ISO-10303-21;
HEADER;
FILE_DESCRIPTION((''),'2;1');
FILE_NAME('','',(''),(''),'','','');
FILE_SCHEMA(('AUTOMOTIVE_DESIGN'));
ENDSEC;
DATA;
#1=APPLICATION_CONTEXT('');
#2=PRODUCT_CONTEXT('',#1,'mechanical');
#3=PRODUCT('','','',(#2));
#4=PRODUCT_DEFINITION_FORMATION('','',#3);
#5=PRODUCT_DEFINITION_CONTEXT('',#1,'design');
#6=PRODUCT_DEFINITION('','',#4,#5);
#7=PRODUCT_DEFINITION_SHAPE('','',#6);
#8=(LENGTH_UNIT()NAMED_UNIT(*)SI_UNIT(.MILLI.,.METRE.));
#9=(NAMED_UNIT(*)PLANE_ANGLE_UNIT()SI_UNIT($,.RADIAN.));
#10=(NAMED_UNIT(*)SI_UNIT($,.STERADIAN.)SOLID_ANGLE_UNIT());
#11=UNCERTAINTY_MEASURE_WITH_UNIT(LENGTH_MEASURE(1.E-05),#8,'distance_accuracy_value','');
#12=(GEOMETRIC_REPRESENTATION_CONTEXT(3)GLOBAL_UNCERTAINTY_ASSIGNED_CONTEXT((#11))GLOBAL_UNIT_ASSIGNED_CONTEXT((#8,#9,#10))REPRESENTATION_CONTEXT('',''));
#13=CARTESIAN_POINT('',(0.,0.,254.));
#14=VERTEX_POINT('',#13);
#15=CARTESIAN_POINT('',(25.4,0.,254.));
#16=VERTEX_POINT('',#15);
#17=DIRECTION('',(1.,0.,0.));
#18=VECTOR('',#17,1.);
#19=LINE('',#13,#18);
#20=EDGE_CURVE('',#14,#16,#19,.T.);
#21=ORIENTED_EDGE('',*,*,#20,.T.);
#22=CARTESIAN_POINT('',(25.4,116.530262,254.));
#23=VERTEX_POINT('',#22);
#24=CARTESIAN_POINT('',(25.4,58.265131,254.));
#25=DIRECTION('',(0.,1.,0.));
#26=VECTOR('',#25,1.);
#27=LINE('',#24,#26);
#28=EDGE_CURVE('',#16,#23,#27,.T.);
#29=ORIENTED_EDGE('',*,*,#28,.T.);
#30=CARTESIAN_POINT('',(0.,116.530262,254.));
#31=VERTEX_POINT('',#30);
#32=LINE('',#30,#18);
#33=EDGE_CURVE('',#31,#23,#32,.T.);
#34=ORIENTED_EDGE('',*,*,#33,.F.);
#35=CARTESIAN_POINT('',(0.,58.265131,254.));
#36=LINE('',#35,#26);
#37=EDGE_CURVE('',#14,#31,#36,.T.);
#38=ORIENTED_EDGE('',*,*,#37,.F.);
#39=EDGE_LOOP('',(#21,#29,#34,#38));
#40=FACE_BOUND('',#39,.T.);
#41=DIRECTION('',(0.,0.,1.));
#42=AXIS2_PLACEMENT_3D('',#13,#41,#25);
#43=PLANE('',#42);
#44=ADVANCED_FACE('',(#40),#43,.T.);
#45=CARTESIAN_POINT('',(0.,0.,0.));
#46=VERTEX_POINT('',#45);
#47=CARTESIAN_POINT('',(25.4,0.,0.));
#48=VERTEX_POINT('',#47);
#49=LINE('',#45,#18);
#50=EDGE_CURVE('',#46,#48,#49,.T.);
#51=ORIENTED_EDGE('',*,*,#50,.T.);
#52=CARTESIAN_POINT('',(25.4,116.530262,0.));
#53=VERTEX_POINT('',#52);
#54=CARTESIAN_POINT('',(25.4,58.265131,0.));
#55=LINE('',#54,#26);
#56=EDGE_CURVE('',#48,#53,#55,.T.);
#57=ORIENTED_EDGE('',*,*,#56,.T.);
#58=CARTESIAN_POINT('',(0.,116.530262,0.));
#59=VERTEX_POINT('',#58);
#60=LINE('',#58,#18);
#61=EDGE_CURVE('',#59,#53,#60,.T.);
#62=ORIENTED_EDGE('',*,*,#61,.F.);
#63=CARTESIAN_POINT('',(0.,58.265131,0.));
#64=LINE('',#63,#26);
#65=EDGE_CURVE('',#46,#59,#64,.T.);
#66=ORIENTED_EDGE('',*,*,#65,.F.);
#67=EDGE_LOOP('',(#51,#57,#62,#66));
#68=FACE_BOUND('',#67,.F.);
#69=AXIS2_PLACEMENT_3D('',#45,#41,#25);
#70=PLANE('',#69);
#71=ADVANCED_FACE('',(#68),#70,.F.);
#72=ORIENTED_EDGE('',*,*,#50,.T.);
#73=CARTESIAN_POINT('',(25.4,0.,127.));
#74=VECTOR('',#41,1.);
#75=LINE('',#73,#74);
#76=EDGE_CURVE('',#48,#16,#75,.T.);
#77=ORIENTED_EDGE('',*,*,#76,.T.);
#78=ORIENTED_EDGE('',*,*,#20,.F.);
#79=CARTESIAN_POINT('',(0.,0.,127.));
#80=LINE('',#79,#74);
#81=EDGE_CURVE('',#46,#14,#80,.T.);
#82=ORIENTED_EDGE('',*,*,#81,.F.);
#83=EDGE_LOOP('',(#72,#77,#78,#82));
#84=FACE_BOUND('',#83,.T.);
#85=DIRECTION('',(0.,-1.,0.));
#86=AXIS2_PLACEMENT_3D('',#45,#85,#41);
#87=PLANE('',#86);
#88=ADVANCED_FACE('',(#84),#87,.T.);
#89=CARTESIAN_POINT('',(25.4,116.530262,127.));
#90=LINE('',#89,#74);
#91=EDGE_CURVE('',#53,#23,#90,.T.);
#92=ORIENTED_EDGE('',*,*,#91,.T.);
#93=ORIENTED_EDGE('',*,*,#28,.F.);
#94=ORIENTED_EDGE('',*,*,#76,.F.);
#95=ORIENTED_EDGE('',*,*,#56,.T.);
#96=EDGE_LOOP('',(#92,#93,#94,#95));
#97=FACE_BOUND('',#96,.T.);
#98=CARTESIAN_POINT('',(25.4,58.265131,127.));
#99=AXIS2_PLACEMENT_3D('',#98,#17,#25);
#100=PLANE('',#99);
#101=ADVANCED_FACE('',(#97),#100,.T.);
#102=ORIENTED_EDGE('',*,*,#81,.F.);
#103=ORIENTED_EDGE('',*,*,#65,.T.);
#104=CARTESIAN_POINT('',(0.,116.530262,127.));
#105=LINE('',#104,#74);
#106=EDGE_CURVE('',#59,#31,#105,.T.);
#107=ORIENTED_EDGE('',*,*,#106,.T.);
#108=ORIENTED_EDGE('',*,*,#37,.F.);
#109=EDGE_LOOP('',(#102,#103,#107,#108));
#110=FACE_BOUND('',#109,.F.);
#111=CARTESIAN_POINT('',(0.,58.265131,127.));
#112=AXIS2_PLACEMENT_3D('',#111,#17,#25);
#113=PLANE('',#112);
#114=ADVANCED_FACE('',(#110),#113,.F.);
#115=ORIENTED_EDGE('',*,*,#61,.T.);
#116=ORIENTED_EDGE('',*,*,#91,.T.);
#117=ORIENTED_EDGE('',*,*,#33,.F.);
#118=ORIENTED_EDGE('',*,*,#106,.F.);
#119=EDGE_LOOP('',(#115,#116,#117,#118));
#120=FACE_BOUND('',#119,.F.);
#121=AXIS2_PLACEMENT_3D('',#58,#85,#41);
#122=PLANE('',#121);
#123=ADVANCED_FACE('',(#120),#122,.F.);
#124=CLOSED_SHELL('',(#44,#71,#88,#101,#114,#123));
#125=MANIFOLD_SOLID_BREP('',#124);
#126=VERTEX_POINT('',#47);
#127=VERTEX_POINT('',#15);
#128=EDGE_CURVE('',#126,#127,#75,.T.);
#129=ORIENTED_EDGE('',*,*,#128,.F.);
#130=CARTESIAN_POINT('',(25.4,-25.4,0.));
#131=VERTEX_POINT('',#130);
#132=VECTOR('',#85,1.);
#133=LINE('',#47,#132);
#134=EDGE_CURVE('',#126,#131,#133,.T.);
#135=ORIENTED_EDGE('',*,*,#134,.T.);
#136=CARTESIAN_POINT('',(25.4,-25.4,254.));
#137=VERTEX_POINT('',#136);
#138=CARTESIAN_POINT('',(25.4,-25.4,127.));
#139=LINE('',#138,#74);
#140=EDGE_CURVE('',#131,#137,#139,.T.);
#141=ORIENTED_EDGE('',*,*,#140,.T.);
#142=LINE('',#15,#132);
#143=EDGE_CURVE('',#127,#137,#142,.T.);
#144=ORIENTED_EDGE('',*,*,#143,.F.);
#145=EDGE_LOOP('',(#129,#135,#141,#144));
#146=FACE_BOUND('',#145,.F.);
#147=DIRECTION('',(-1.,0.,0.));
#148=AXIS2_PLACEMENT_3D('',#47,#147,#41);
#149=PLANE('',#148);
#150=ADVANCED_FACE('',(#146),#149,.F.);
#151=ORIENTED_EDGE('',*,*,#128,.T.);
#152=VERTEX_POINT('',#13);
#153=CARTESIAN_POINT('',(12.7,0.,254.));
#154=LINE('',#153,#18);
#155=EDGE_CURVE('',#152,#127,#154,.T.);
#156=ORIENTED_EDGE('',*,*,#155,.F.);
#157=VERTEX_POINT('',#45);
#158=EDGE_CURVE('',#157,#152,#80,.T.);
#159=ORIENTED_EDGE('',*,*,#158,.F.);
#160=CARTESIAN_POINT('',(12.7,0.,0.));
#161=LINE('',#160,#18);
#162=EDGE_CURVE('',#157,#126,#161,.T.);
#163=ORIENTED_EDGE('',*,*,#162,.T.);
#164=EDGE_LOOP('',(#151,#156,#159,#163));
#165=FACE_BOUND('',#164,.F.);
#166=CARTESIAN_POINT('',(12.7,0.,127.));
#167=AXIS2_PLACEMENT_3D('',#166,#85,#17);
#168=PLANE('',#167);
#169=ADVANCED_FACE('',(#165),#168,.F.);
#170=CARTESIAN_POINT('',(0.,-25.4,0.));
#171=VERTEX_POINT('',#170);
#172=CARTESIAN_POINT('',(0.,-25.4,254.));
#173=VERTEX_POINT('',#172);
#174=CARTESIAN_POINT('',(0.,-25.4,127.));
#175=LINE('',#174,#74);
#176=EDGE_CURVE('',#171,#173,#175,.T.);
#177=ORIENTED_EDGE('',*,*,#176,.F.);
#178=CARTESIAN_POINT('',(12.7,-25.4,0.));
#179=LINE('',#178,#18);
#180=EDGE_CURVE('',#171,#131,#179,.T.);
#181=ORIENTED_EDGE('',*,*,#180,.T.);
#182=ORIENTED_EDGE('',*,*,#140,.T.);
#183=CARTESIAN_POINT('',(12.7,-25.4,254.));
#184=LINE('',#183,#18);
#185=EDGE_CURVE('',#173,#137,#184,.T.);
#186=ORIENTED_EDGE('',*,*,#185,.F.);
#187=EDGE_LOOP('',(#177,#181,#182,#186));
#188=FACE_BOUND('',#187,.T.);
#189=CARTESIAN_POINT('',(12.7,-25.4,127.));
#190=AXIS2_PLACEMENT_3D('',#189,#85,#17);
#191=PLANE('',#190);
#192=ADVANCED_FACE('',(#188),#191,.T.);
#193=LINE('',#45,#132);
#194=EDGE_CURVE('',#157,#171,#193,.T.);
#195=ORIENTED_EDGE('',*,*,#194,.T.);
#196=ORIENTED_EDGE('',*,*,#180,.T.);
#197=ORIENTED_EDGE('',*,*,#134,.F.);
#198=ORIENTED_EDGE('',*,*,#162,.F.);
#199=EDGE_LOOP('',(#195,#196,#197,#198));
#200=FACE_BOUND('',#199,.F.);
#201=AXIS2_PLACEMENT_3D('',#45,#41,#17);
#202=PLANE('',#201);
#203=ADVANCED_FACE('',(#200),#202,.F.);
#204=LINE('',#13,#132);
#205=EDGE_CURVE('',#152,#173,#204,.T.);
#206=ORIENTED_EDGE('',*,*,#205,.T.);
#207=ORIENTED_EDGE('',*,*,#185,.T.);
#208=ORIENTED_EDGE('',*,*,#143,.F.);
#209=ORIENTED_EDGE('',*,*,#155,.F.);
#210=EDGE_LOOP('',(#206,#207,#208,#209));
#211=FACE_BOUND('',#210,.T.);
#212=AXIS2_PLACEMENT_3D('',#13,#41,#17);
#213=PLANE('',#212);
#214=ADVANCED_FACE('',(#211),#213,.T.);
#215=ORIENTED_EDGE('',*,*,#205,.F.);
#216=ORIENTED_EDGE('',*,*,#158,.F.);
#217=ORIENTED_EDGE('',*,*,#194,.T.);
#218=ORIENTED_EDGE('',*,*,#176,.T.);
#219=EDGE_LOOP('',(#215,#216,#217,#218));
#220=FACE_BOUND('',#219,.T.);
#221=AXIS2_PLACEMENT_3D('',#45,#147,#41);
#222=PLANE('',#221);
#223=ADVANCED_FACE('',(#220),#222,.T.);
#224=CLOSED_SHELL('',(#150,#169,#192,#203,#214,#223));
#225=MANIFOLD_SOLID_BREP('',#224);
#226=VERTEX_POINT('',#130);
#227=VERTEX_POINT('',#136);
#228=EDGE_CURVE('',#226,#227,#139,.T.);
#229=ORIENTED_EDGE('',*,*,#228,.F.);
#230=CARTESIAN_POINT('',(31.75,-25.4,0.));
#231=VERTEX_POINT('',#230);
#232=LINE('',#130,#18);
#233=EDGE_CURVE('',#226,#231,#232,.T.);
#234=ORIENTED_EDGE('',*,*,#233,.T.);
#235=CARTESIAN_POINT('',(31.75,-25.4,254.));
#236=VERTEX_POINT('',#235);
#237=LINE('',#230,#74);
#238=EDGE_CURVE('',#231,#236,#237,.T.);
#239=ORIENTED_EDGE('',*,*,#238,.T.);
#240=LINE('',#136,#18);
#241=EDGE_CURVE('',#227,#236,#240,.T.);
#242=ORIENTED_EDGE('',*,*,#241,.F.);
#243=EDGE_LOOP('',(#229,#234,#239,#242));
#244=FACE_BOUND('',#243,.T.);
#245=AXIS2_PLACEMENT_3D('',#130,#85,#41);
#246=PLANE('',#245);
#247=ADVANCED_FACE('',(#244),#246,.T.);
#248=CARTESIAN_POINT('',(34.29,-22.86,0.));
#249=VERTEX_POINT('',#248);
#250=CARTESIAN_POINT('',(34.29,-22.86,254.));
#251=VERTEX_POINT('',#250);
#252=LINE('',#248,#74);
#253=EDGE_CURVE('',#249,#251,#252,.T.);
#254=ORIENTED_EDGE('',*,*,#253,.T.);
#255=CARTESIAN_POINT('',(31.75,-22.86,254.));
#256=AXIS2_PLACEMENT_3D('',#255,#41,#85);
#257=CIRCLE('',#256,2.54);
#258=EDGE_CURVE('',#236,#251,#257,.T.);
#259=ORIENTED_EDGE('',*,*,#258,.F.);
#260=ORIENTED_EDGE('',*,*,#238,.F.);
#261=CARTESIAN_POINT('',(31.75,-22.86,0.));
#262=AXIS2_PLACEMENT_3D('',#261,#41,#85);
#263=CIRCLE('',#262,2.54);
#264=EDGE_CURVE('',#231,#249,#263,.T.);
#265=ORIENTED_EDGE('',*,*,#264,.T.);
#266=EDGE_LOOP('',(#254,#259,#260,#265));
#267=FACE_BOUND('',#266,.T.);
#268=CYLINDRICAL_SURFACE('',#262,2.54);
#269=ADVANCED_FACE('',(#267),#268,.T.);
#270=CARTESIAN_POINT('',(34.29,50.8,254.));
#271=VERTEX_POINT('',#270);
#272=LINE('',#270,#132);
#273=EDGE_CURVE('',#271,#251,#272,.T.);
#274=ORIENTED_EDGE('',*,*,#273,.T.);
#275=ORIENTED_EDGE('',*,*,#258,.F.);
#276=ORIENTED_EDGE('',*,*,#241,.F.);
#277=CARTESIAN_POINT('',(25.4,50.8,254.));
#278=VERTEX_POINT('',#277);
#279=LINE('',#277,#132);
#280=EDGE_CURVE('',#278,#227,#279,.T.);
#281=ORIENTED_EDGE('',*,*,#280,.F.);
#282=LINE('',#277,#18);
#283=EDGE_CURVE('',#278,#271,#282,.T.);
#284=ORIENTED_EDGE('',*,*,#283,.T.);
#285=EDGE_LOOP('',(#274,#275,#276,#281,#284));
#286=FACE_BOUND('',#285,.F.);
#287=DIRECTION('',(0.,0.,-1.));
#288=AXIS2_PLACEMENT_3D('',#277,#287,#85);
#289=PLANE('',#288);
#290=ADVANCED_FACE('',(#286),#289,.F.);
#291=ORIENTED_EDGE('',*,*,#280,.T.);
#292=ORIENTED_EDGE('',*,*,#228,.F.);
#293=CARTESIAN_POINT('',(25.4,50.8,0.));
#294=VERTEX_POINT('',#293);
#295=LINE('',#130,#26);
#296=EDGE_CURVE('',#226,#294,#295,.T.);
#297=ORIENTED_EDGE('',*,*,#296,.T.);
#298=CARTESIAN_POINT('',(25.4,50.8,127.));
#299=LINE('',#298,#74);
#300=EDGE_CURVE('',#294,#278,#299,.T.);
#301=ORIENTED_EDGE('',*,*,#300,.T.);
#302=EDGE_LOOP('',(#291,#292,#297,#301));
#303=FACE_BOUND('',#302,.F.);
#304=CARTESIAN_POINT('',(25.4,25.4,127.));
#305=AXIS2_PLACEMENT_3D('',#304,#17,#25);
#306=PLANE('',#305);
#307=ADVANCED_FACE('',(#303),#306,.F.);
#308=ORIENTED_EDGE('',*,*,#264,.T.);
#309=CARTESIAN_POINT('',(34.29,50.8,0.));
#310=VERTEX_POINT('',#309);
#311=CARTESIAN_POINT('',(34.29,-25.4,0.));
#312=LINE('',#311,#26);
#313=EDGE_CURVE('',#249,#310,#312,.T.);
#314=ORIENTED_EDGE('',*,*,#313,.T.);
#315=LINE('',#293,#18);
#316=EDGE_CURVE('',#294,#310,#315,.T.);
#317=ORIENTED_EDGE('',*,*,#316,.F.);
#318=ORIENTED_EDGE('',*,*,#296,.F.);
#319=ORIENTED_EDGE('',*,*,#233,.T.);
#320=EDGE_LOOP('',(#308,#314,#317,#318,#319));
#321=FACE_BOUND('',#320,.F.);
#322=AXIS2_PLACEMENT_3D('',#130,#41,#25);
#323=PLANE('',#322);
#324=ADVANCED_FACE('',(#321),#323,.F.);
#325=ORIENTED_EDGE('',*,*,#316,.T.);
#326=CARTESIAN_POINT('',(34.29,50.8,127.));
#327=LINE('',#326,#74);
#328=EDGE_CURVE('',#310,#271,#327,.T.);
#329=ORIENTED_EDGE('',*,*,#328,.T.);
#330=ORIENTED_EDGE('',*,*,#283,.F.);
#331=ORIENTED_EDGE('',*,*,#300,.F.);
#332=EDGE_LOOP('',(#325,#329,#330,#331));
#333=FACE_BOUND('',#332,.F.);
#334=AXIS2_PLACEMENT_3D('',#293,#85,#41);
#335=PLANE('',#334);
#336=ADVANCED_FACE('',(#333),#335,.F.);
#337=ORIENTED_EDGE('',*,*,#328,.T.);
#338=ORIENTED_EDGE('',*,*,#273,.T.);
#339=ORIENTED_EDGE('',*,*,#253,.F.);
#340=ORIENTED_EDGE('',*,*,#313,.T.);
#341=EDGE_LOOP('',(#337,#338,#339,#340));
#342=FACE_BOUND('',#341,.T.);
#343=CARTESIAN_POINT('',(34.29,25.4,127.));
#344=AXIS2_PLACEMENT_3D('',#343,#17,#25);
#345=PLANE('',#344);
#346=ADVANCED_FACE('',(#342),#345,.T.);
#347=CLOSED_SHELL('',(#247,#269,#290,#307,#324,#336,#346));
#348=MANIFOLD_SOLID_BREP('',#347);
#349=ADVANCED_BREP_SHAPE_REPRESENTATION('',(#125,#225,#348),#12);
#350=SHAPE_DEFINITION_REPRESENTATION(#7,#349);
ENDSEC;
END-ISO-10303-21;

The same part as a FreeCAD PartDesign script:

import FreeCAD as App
import Part
import Sketcher
Q = App.Units.Quantity


def edges_at(feature, points):
    """Names of the edges that pass closest to the given points."""
    edges = feature.Shape.Edges
    near = lambda p: min(range(len(edges)), key=lambda i: edges[i].distToShape(Part.Vertex(*p))[0])
    return sorted({f"Edge{near(p) + 1}" for p in points})

doc = App.newDocument("Part")
params = doc.addObject("Spreadsheet::Sheet", "Params")
for row, (alias, value) in enumerate([
    ("sketch1_height", "10 in"),
    ("pad1_length", "1 in"),
    ("sketch2_width", "1 in"),
    ("sketch2_height", "10 in"),
    ("pad2_length", "1 in"),
    ("sketch3_width", "3 in"),
    ("sketch3_height", "10 in"),
    ("pad3_length", "0.35 in"),
    ("fillet_radius", "0.1 in"),
], start=1):
    params.set(f"A{row}", alias)
    params.set(f"B{row}", "=" + value)
    params.setAlias(f"B{row}", alias)

body = doc.addObject("PartDesign::Body", "Body")

sketch1 = body.newObject("Sketcher::SketchObject", "Sketch")
sketch1.AttachmentSupport = (doc.getObject("YZ_Plane"), [""])
sketch1.MapMode = "FlatFace"
sketch1.addGeometry(Part.LineSegment(App.Vector(0, 254, 0), App.Vector(0, 0, 0)), False)
sketch1.addGeometry(Part.LineSegment(App.Vector(0, 0, 0), App.Vector(116.530262, 0, 0)), False)
sketch1.addGeometry(Part.LineSegment(App.Vector(116.530262, 0, 0), App.Vector(116.530262, 254, 0)), False)
sketch1.addGeometry(Part.LineSegment(App.Vector(116.530262, 254, 0), App.Vector(0, 254, 0)), False)
sketch1.addConstraint(Sketcher.Constraint("Coincident", 0, 2, 1, 1))
sketch1.addConstraint(Sketcher.Constraint("Coincident", 1, 2, 2, 1))
sketch1.addConstraint(Sketcher.Constraint("Coincident", 2, 2, 3, 1))
sketch1.addConstraint(Sketcher.Constraint("Coincident", 3, 2, 0, 1))
sketch1.addConstraint(Sketcher.Constraint("Vertical", 0))
sketch1.addConstraint(Sketcher.Constraint("Horizontal", 1))
sketch1.addConstraint(Sketcher.Constraint("Vertical", 2))
sketch1.addConstraint(Sketcher.Constraint("Horizontal", 3))
sketch1.addConstraint(Sketcher.Constraint("Coincident", 0, 2, -1, 1))
sketch1.addConstraint(Sketcher.Constraint("DistanceY", 0, 2, 0, 1, Q("10 in")))
sketch1.addConstraint(Sketcher.Constraint("DistanceX", 1, 1, 1, 2, Q("116.530262 mm")))
sketch1.setExpression("Constraints[9]", "Params.sketch1_height")
pad1 = body.newObject("PartDesign::Pad", "Pad")
pad1.Profile = sketch1
pad1.setExpression("Length", "Params.pad1_length")
body2 = doc.addObject("PartDesign::Body", "Body001")

sketch2 = body2.newObject("Sketcher::SketchObject", "Sketch001")
sketch2.AttachmentSupport = (doc.getObject("XZ_Plane001"), [""])
sketch2.MapMode = "FlatFace"
sketch2.addGeometry(Part.LineSegment(App.Vector(0, 254, 0), App.Vector(0, 0, 0)), False)
sketch2.addGeometry(Part.LineSegment(App.Vector(0, 0, 0), App.Vector(25.4, 0, 0)), False)
sketch2.addGeometry(Part.LineSegment(App.Vector(25.4, 0, 0), App.Vector(25.4, 254, 0)), False)
sketch2.addGeometry(Part.LineSegment(App.Vector(25.4, 254, 0), App.Vector(0, 254, 0)), False)
sketch2.addConstraint(Sketcher.Constraint("Coincident", 0, 2, 1, 1))
sketch2.addConstraint(Sketcher.Constraint("Coincident", 1, 2, 2, 1))
sketch2.addConstraint(Sketcher.Constraint("Coincident", 2, 2, 3, 1))
sketch2.addConstraint(Sketcher.Constraint("Coincident", 3, 2, 0, 1))
sketch2.addConstraint(Sketcher.Constraint("Vertical", 0))
sketch2.addConstraint(Sketcher.Constraint("Horizontal", 1))
sketch2.addConstraint(Sketcher.Constraint("Vertical", 2))
sketch2.addConstraint(Sketcher.Constraint("Horizontal", 3))
sketch2.addConstraint(Sketcher.Constraint("Coincident", 0, 2, -1, 1))
sketch2.addConstraint(Sketcher.Constraint("DistanceX", 1, 1, 1, 2, Q("1 in")))
sketch2.addConstraint(Sketcher.Constraint("DistanceY", 0, 2, 0, 1, Q("10 in")))
sketch2.setExpression("Constraints[9]", "Params.sketch2_width")
sketch2.setExpression("Constraints[10]", "Params.sketch2_height")
pad2 = body2.newObject("PartDesign::Pad", "Pad001")
pad2.Profile = sketch2
pad2.setExpression("Length", "Params.pad2_length")
body3 = doc.addObject("PartDesign::Body", "Body002")

sketch3 = body3.newObject("Sketcher::SketchObject", "Sketch002")
sketch3.AttachmentSupport = (doc.getObject("YZ_Plane002"), [""])
sketch3.MapMode = "FlatFace"
sketch3.AttachmentOffset = App.Placement(App.Vector(0, 0, 1 * 25.4), App.Rotation())
sketch3.addGeometry(Part.LineSegment(App.Vector(50.8, 0, 0), App.Vector(50.8, 254, 0)), False)
sketch3.addGeometry(Part.LineSegment(App.Vector(50.8, 254, 0), App.Vector(-25.4, 254, 0)), False)
sketch3.addGeometry(Part.LineSegment(App.Vector(-25.4, 254, 0), App.Vector(-25.4, 0, 0)), False)
sketch3.addGeometry(Part.LineSegment(App.Vector(-25.4, 0, 0), App.Vector(50.8, 0, 0)), False)
sketch3.addConstraint(Sketcher.Constraint("Coincident", 0, 2, 1, 1))
sketch3.addConstraint(Sketcher.Constraint("Coincident", 1, 2, 2, 1))
sketch3.addConstraint(Sketcher.Constraint("Coincident", 2, 2, 3, 1))
sketch3.addConstraint(Sketcher.Constraint("Coincident", 3, 2, 0, 1))
sketch3.addConstraint(Sketcher.Constraint("Vertical", 0))
sketch3.addConstraint(Sketcher.Constraint("Horizontal", 1))
sketch3.addConstraint(Sketcher.Constraint("Vertical", 2))
sketch3.addConstraint(Sketcher.Constraint("Horizontal", 3))
sketch3.addConstraint(Sketcher.Constraint("PointOnObject", 2, 2, -1))
sketch3.addConstraint(Sketcher.Constraint("DistanceX", 1, 2, 1, 1, Q("3 in")))
sketch3.addConstraint(Sketcher.Constraint("DistanceY", 0, 1, 0, 2, Q("10 in")))
sketch3.addConstraint(Sketcher.Constraint("DistanceX", -1, 1, 0, 2, Q("2 in")))
sketch3.setExpression("Constraints[9]", "Params.sketch3_width")
sketch3.setExpression("Constraints[10]", "Params.sketch3_height")
pad3 = body3.newObject("PartDesign::Pad", "Pad002")
pad3.Profile = sketch3
pad3.setExpression("Length", "Params.pad3_length")
doc.recompute()

fillet = body3.newObject("PartDesign::Fillet", "Fillet")
fillet.Base = (pad3, edges_at(pad3, [(34.29, -25.4, 127)]))
fillet.setExpression("Radius", "Params.fillet_radius")

doc.recompute()
